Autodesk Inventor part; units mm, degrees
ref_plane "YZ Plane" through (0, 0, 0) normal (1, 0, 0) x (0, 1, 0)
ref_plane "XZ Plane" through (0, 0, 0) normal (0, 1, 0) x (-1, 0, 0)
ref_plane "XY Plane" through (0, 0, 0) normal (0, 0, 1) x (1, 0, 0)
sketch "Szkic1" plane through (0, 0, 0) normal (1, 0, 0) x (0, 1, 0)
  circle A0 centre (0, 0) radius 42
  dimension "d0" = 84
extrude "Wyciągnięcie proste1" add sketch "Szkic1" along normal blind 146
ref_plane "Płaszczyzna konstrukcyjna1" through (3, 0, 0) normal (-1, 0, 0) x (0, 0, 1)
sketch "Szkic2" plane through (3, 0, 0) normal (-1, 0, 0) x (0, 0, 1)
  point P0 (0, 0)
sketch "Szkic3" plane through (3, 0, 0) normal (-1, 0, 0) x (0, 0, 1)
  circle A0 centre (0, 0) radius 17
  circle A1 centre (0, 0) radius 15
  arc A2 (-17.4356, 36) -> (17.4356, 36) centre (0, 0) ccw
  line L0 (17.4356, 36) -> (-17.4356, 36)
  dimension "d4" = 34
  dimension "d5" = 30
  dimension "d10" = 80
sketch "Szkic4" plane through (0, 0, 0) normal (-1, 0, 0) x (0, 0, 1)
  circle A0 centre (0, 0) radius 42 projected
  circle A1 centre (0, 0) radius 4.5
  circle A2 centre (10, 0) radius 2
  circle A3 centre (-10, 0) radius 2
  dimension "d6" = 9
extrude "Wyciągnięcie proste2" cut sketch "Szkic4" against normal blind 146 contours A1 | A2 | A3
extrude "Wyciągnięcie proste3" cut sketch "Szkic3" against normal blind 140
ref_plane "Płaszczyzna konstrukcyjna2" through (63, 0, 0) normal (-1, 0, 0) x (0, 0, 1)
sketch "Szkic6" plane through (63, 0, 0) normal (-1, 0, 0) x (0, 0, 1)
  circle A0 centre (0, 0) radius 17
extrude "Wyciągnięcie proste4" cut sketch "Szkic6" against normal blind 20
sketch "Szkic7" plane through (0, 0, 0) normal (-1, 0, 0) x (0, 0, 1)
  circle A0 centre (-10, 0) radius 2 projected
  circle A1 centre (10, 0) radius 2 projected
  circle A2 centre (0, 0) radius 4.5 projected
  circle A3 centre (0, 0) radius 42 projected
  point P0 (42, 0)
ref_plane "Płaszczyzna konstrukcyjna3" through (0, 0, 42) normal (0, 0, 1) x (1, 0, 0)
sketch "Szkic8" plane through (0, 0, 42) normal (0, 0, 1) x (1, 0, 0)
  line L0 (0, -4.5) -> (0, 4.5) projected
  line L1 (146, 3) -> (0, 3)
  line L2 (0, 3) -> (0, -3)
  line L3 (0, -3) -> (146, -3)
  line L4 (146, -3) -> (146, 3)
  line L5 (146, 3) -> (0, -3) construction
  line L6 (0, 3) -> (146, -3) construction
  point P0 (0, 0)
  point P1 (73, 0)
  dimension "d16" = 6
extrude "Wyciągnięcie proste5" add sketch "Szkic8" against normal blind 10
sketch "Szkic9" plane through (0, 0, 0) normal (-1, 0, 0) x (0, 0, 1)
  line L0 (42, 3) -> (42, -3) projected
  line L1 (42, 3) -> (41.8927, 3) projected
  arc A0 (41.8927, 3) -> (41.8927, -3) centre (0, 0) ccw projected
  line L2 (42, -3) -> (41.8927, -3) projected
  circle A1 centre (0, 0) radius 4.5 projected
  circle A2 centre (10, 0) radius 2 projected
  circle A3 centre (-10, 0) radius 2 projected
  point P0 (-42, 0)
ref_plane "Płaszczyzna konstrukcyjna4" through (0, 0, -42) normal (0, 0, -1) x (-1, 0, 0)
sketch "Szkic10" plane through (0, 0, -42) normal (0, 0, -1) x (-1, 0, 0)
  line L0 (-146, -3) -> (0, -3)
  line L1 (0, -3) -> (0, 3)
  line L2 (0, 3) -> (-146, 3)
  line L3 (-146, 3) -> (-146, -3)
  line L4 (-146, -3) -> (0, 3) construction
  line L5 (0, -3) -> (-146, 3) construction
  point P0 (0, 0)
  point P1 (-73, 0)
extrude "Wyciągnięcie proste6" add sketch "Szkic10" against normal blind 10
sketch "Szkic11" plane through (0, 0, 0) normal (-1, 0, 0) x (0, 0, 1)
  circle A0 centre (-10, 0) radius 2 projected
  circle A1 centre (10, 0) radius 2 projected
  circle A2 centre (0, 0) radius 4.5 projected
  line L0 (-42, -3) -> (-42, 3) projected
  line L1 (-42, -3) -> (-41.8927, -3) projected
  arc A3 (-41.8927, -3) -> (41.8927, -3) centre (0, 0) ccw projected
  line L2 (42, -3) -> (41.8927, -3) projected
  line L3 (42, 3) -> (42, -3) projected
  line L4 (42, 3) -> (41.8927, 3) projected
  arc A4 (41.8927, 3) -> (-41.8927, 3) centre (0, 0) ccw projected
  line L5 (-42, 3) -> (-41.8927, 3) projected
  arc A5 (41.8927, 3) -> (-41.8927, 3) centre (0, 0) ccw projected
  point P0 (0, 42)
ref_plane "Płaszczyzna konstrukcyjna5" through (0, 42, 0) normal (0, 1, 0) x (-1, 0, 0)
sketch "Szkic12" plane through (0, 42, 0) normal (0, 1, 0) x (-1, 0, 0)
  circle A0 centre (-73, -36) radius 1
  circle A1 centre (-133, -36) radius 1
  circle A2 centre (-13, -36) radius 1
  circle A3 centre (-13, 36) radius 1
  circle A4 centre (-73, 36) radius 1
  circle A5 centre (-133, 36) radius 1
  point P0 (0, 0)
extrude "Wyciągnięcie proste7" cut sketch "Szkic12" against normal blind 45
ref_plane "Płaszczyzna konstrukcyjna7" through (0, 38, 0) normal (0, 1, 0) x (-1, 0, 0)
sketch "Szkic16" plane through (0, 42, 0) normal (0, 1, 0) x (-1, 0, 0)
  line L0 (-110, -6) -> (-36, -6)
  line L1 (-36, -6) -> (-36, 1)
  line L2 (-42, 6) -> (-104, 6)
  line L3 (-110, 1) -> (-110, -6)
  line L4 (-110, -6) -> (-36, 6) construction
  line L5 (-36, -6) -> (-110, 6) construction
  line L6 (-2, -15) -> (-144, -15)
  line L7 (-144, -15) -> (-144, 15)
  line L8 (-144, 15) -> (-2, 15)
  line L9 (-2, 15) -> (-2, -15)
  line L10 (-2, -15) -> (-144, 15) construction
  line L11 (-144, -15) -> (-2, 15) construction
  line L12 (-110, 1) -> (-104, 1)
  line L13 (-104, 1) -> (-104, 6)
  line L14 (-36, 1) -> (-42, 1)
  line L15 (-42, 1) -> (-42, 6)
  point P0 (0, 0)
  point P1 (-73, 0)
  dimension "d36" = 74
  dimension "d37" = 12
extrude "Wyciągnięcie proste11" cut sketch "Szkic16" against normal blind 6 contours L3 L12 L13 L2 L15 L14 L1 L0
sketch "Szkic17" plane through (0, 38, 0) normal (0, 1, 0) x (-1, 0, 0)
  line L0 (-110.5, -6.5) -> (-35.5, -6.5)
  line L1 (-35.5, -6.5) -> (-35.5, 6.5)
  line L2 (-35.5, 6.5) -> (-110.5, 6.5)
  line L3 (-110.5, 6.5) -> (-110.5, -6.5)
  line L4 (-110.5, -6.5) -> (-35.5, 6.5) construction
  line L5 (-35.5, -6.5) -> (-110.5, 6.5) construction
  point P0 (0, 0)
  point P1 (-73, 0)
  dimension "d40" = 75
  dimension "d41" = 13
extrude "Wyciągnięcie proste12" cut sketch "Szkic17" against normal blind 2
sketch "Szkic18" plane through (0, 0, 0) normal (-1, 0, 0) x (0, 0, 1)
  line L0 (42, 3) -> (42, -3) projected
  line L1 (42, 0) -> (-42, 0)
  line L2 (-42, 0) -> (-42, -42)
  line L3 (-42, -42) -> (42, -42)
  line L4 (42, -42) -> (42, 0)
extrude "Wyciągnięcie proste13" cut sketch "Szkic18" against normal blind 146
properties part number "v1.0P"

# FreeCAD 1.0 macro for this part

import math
import FreeCAD as App
import Part
import Sketcher
Q = App.Units.Quantity

doc = App.newDocument("Part")
body = doc.addObject("PartDesign::Body", "Body")

# Sketch on YZ plane
sketch1 = body.newObject("Sketcher::SketchObject", "Sketch")
sketch1.AttachmentSupport = (doc.getObject("YZ_Plane"), [""])
sketch1.MapMode = "FlatFace"
sketch1.addGeometry(Part.Circle(App.Vector(0, 0, 0), App.Vector(0, 0, 1), 42), False)
sketch1.addConstraint([
    Sketcher.Constraint("Coincident", 0, 3, -1, 1),
    Sketcher.Constraint("Diameter", 0, Q("84 mm")),
])
pad1 = body.newObject("PartDesign::Pad", "Pad")
pad1.Profile = sketch1
pad1.Length = 146

# Sketch on YZ plane
sketch2 = body.newObject("Sketcher::SketchObject", "Sketch001")
sketch2.AttachmentSupport = (doc.getObject("YZ_Plane"), [""])
sketch2.MapMode = "FlatFace"
sketch2.addGeometry([
    Part.Circle(App.Vector(0, 0, 0), App.Vector(0, 0, 1), 4.5),
    Part.Circle(App.Vector(0, 10, 0), App.Vector(0, 0, 1), 2),
    Part.Circle(App.Vector(0, -10, 0), App.Vector(0, 0, 1), 2),
], False)
sketch2.addConstraint([
    Sketcher.Constraint("Coincident", 0, 3, -1, 1),
    Sketcher.Constraint("Equal", 1, 2),
    Sketcher.Constraint("Symmetric", 1, 3, 2, 3, -1, 1),
    Sketcher.Constraint("PointOnObject", 1, 3, -2),
    Sketcher.Constraint("Diameter", 0, Q("9 mm")),
    Sketcher.Constraint("Diameter", 1, Q("4 mm")),
    Sketcher.Constraint("DistanceY", -1, 1, 1, 3, Q("10 mm")),
])
pocket1 = body.newObject("PartDesign::Pocket", "Pocket")
pocket1.Profile = sketch2
pocket1.Length = 146
pocket1.Reversed = True

# Sketch on YZ plane
sketch3 = body.newObject("Sketcher::SketchObject", "Sketch002")
sketch3.AttachmentSupport = (doc.getObject("YZ_Plane"), [""])
sketch3.MapMode = "FlatFace"
sketch3.AttachmentOffset = App.Placement(App.Vector(0, 0, 3), App.Rotation())
sketch3.addGeometry([
    Part.Circle(App.Vector(0, 0, 0), App.Vector(0, 0, 1), 15),
    Part.LineSegment(App.Vector(36, 17, 0), App.Vector(36, -17, 0)),
    Part.ArcOfCircle(Part.Circle(App.Vector(0, 0, 0), App.Vector(0, 0, 1), 40), math.radians(26), math.radians(334)),
    Part.Circle(App.Vector(0, 0, 0), App.Vector(0, 0, 1), 17),
], False)
sketch3.addConstraint([
    Sketcher.Constraint("Coincident", 1, 1, 2, 1),
    Sketcher.Constraint("Coincident", 2, 2, 1, 2),
    Sketcher.Constraint("Vertical", 1),
    Sketcher.Constraint("Coincident", 0, 3, -1, 1),
    Sketcher.Constraint("Coincident", 2, 3, -1, 1),
    Sketcher.Constraint("Coincident", 3, 3, -1, 1),
    Sketcher.Constraint("Diameter", 0, Q("30 mm")),
    Sketcher.Constraint("Diameter", 3, Q("34 mm")),
    Sketcher.Constraint("Radius", 2, Q("40 mm")),
    Sketcher.Constraint("DistanceX", -1, 1, 1, 1, Q("36 mm")),
])
pocket2 = body.newObject("PartDesign::Pocket", "Pocket001")
pocket2.Profile = sketch3
pocket2.Length = 140
pocket2.Reversed = True

# Sketch on YZ plane
sketch4 = body.newObject("Sketcher::SketchObject", "Sketch003")
sketch4.AttachmentSupport = (doc.getObject("YZ_Plane"), [""])
sketch4.MapMode = "FlatFace"
sketch4.AttachmentOffset = App.Placement(App.Vector(0, 0, 63), App.Rotation())
sketch4.addGeometry(Part.Circle(App.Vector(0, 0, 0), App.Vector(0, 0, 1), 17), False)
sketch4.addConstraint([
    Sketcher.Constraint("Coincident", 0, 3, -1, 1),
    Sketcher.Constraint("Diameter", 0, Q("34 mm")),
])
pocket3 = body.newObject("PartDesign::Pocket", "Pocket002")
pocket3.Profile = sketch4
pocket3.Length = 20
pocket3.Reversed = True

# Sketch on XY plane
sketch5 = body.newObject("Sketcher::SketchObject", "Sketch004")
sketch5.AttachmentSupport = (doc.getObject("XY_Plane"), [""])
sketch5.MapMode = "FlatFace"
sketch5.AttachmentOffset = App.Placement(App.Vector(0, 0, 42), App.Rotation())
sketch5.addGeometry([
    Part.LineSegment(App.Vector(0, 3, 0), App.Vector(0, -3, 0)),
    Part.LineSegment(App.Vector(0, -3, 0), App.Vector(146, -3, 0)),
    Part.LineSegment(App.Vector(146, -3, 0), App.Vector(146, 3, 0)),
    Part.LineSegment(App.Vector(146, 3, 0), App.Vector(0, 3, 0)),
], False)
sketch5.addConstraint([
    Sketcher.Constraint("Coincident", 0, 2, 1, 1),
    Sketcher.Constraint("Coincident", 1, 2, 2, 1),
    Sketcher.Constraint("Coincident", 2, 2, 3, 1),
    Sketcher.Constraint("Coincident", 3, 2, 0, 1),
    Sketcher.Constraint("Vertical", 0),
    Sketcher.Constraint("Horizontal", 1),
    Sketcher.Constraint("Vertical", 2),
    Sketcher.Constraint("Horizontal", 3),
    Sketcher.Constraint("Symmetric", 0, 2, 3, 2, -1, 1),
    Sketcher.Constraint("DistanceY", 0, 2, 0, 1, Q("6 mm")),
    Sketcher.Constraint("DistanceX", 1, 1, 1, 2, Q("146 mm")),
])
pad2 = body.newObject("PartDesign::Pad", "Pad001")
pad2.Profile = sketch5
pad2.Length = 10
pad2.Reversed = True

# Sketch on XY plane
sketch6 = body.newObject("Sketcher::SketchObject", "Sketch005")
sketch6.AttachmentSupport = (doc.getObject("XY_Plane"), [""])
sketch6.MapMode = "FlatFace"
sketch6.AttachmentOffset = App.Placement(App.Vector(0, 0, -42), App.Rotation())
sketch6.addGeometry([
    Part.LineSegment(App.Vector(146, 3, 0), App.Vector(146, -3, 0)),
    Part.LineSegment(App.Vector(146, -3, 0), App.Vector(0, -3, 0)),
    Part.LineSegment(App.Vector(0, -3, 0), App.Vector(0, 3, 0)),
    Part.LineSegment(App.Vector(0, 3, 0), App.Vector(146, 3, 0)),
], False)
sketch6.addConstraint([
    Sketcher.Constraint("Coincident", 0, 2, 1, 1),
    Sketcher.Constraint("Coincident", 1, 2, 2, 1),
    Sketcher.Constraint("Coincident", 2, 2, 3, 1),
    Sketcher.Constraint("Coincident", 3, 2, 0, 1),
    Sketcher.Constraint("Vertical", 0),
    Sketcher.Constraint("Horizontal", 1),
    Sketcher.Constraint("Vertical", 2),
    Sketcher.Constraint("Horizontal", 3),
    Sketcher.Constraint("Symmetric", 1, 2, 2, 2, -1, 1),
    Sketcher.Constraint("DistanceX", 1, 2, 1, 1, Q("146 mm")),
    Sketcher.Constraint("DistanceY", 0, 2, 0, 1, Q("6 mm")),
])
pad3 = body.newObject("PartDesign::Pad", "Pad002")
pad3.Profile = sketch6
pad3.Length = 10

# Sketch on XZ plane
sketch7 = body.newObject("Sketcher::SketchObject", "Sketch006")
sketch7.AttachmentSupport = (doc.getObject("XZ_Plane"), [""])
sketch7.MapMode = "FlatFace"
sketch7.AttachmentOffset = App.Placement(App.Vector(0, 0, -42), App.Rotation())
sketch7.addGeometry([
    Part.Circle(App.Vector(73, -36, 0), App.Vector(0, 0, 1), 1),  # 0
    Part.Circle(App.Vector(133, -36, 0), App.Vector(0, 0, 1), 1),  # 1
    Part.Circle(App.Vector(13, -36, 0), App.Vector(0, 0, 1), 1),  # 2
    Part.Circle(App.Vector(13, 36, 0), App.Vector(0, 0, 1), 1),  # 3
    Part.Circle(App.Vector(73, 36, 0), App.Vector(0, 0, 1), 1),  # 4
    Part.Circle(App.Vector(133, 36, 0), App.Vector(0, 0, 1), 1),  # 5
], False)
sketch7.addConstraint([
    Sketcher.Constraint("Equal", 0, 1),
    Sketcher.Constraint("Equal", 1, 2),
    Sketcher.Constraint("Equal", 2, 3),
    Sketcher.Constraint("Equal", 3, 4),
    Sketcher.Constraint("Equal", 4, 5),
    Sketcher.Constraint("Symmetric", 2, 3, 3, 3, -1),
    Sketcher.Constraint("Symmetric", 0, 3, 4, 3, -1),
    Sketcher.Constraint("Symmetric", 1, 3, 5, 3, -1),
    Sketcher.Constraint("Horizontal", 0, 3, 1, 3),
    Sketcher.Constraint("Horizontal", 1, 3, 2, 3),
    Sketcher.Constraint("Diameter", 0, Q("2 mm")),
    Sketcher.Constraint("DistanceX", -1, 1, 0, 3, Q("73 mm")),
    Sketcher.Constraint("DistanceY", 0, 3, -1, 1, Q("36 mm")),
    Sketcher.Constraint("DistanceX", -1, 1, 1, 3, Q("133 mm")),
    Sketcher.Constraint("DistanceX", -1, 1, 2, 3, Q("13 mm")),
])
pocket4 = body.newObject("PartDesign::Pocket", "Pocket003")
pocket4.Profile = sketch7
pocket4.Length = 45
pocket4.Reversed = True

# Sketch on XZ plane
sketch8 = body.newObject("Sketcher::SketchObject", "Sketch007")
sketch8.AttachmentSupport = (doc.getObject("XZ_Plane"), [""])
sketch8.MapMode = "FlatFace"
sketch8.AttachmentOffset = App.Placement(App.Vector(0, 0, -42), App.Rotation())
sketch8.addGeometry([
    Part.LineSegment(App.Vector(110, 1, 0), App.Vector(110, -6, 0)),  # 0
    Part.LineSegment(App.Vector(110, -6, 0), App.Vector(36, -6, 0)),  # 1
    Part.LineSegment(App.Vector(36, -6, 0), App.Vector(36, 1, 0)),  # 2
    Part.LineSegment(App.Vector(36, 1, 0), App.Vector(42, 1, 0)),  # 3
    Part.LineSegment(App.Vector(42, 1, 0), App.Vector(42, 6, 0)),  # 4
    Part.LineSegment(App.Vector(42, 6, 0), App.Vector(104, 6, 0)),  # 5
    Part.LineSegment(App.Vector(104, 6, 0), App.Vector(104, 1, 0)),  # 6
    Part.LineSegment(App.Vector(104, 1, 0), App.Vector(110, 1, 0)),  # 7
], False)
sketch8.addConstraint([
    Sketcher.Constraint("Coincident", 0, 2, 1, 1),
    Sketcher.Constraint("Coincident", 1, 2, 2, 1),
    Sketcher.Constraint("Coincident", 2, 2, 3, 1),
    Sketcher.Constraint("Coincident", 3, 2, 4, 1),
    Sketcher.Constraint("Coincident", 4, 2, 5, 1),
    Sketcher.Constraint("Coincident", 5, 2, 6, 1),
    Sketcher.Constraint("Coincident", 6, 2, 7, 1),
    Sketcher.Constraint("Coincident", 7, 2, 0, 1),
    Sketcher.Constraint("Vertical", 0),
    Sketcher.Constraint("Horizontal", 1),
    Sketcher.Constraint("Vertical", 2),
    Sketcher.Constraint("Horizontal", 3),
    Sketcher.Constraint("Vertical", 4),
    Sketcher.Constraint("Horizontal", 5),
    Sketcher.Constraint("Vertical", 6),
    Sketcher.Constraint("Horizontal", 7),
    Sketcher.Constraint("Horizontal", 3, 2, 6, 2),
    Sketcher.Constraint("Equal", 3, 7),
    Sketcher.Constraint("DistanceX", 1, 2, 1, 1, Q("74 mm")),
    Sketcher.Constraint("DistanceY", 1, 2, 4, 2, Q("12 mm")),
    Sketcher.Constraint("DistanceX", 3, 1, 3, 2, Q("6 mm")),
    Sketcher.Constraint("DistanceY", 0, 2, 0, 1, Q("7 mm")),
    Sketcher.Constraint("DistanceX", -1, 1, 0, 2, Q("110 mm")),
    Sketcher.Constraint("DistanceY", 0, 2, -1, 1, Q("6 mm")),
])
pocket5 = body.newObject("PartDesign::Pocket", "Pocket004")
pocket5.Profile = sketch8
pocket5.Length = 6
pocket5.Reversed = True

# Sketch on XZ plane
sketch9 = body.newObject("Sketcher::SketchObject", "Sketch008")
sketch9.AttachmentSupport = (doc.getObject("XZ_Plane"), [""])
sketch9.MapMode = "FlatFace"
sketch9.AttachmentOffset = App.Placement(App.Vector(0, 0, -38), App.Rotation())
sketch9.addGeometry([
    Part.LineSegment(App.Vector(110, 6, 0), App.Vector(110, -6, 0)),
    Part.LineSegment(App.Vector(110, -6, 0), App.Vector(36, -6, 0)),
    Part.LineSegment(App.Vector(36, -6, 0), App.Vector(36, 6, 0)),
    Part.LineSegment(App.Vector(36, 6, 0), App.Vector(110, 6, 0)),
], False)
sketch9.addConstraint([
    Sketcher.Constraint("Coincident", 0, 2, 1, 1),
    Sketcher.Constraint("Coincident", 1, 2, 2, 1),
    Sketcher.Constraint("Coincident", 2, 2, 3, 1),
    Sketcher.Constraint("Coincident", 3, 2, 0, 1),
    Sketcher.Constraint("Vertical", 0),
    Sketcher.Constraint("Horizontal", 1),
    Sketcher.Constraint("Vertical", 2),
    Sketcher.Constraint("Horizontal", 3),
    Sketcher.Constraint("DistanceX", 1, 2, 1, 1, Q("75 mm")),
    Sketcher.Constraint("DistanceY", 0, 2, 0, 1, Q("13 mm")),
    Sketcher.Constraint("DistanceX", -1, 1, 0, 2, Q("110.5 mm")),
    Sketcher.Constraint("DistanceY", 0, 2, -1, 1, Q("6.5 mm")),
])
pocket6 = body.newObject("PartDesign::Pocket", "Pocket005")
pocket6.Profile = sketch9
pocket6.Length = 2
pocket6.Reversed = True

# Sketch on YZ plane
sketch10 = body.newObject("Sketcher::SketchObject", "Sketch009")
sketch10.AttachmentSupport = (doc.getObject("YZ_Plane"), [""])
sketch10.MapMode = "FlatFace"
sketch10.addGeometry([
    Part.LineSegment(App.Vector(-42, 42, 0), App.Vector(0, 42, 0)),
    Part.LineSegment(App.Vector(0, 42, 0), App.Vector(0, -42, 0)),
    Part.LineSegment(App.Vector(0, -42, 0), App.Vector(-42, -42, 0)),
    Part.LineSegment(App.Vector(-42, -42, 0), App.Vector(-42, 42, 0)),
], False)
sketch10.addConstraint([
    Sketcher.Constraint("Coincident", 0, 2, 1, 1),
    Sketcher.Constraint("Coincident", 1, 2, 2, 1),
    Sketcher.Constraint("Coincident", 2, 2, 3, 1),
    Sketcher.Constraint("Coincident", 3, 2, 0, 1),
    Sketcher.Constraint("Horizontal", 0),
    Sketcher.Constraint("Vertical", 1),
    Sketcher.Constraint("Horizontal", 2),
    Sketcher.Constraint("Vertical", 3),
    Sketcher.Constraint("Symmetric", 0, 2, 1, 2, -1, 1),
    Sketcher.Constraint("DistanceX", 0, 1, 0, 2, Q("42 mm")),
    Sketcher.Constraint("DistanceY", 1, 2, 1, 1, Q("84 mm")),
])
pocket7 = body.newObject("PartDesign::Pocket", "Pocket006")
pocket7.Profile = sketch10
pocket7.Length = 146
pocket7.Reversed = True

doc.recompute()
